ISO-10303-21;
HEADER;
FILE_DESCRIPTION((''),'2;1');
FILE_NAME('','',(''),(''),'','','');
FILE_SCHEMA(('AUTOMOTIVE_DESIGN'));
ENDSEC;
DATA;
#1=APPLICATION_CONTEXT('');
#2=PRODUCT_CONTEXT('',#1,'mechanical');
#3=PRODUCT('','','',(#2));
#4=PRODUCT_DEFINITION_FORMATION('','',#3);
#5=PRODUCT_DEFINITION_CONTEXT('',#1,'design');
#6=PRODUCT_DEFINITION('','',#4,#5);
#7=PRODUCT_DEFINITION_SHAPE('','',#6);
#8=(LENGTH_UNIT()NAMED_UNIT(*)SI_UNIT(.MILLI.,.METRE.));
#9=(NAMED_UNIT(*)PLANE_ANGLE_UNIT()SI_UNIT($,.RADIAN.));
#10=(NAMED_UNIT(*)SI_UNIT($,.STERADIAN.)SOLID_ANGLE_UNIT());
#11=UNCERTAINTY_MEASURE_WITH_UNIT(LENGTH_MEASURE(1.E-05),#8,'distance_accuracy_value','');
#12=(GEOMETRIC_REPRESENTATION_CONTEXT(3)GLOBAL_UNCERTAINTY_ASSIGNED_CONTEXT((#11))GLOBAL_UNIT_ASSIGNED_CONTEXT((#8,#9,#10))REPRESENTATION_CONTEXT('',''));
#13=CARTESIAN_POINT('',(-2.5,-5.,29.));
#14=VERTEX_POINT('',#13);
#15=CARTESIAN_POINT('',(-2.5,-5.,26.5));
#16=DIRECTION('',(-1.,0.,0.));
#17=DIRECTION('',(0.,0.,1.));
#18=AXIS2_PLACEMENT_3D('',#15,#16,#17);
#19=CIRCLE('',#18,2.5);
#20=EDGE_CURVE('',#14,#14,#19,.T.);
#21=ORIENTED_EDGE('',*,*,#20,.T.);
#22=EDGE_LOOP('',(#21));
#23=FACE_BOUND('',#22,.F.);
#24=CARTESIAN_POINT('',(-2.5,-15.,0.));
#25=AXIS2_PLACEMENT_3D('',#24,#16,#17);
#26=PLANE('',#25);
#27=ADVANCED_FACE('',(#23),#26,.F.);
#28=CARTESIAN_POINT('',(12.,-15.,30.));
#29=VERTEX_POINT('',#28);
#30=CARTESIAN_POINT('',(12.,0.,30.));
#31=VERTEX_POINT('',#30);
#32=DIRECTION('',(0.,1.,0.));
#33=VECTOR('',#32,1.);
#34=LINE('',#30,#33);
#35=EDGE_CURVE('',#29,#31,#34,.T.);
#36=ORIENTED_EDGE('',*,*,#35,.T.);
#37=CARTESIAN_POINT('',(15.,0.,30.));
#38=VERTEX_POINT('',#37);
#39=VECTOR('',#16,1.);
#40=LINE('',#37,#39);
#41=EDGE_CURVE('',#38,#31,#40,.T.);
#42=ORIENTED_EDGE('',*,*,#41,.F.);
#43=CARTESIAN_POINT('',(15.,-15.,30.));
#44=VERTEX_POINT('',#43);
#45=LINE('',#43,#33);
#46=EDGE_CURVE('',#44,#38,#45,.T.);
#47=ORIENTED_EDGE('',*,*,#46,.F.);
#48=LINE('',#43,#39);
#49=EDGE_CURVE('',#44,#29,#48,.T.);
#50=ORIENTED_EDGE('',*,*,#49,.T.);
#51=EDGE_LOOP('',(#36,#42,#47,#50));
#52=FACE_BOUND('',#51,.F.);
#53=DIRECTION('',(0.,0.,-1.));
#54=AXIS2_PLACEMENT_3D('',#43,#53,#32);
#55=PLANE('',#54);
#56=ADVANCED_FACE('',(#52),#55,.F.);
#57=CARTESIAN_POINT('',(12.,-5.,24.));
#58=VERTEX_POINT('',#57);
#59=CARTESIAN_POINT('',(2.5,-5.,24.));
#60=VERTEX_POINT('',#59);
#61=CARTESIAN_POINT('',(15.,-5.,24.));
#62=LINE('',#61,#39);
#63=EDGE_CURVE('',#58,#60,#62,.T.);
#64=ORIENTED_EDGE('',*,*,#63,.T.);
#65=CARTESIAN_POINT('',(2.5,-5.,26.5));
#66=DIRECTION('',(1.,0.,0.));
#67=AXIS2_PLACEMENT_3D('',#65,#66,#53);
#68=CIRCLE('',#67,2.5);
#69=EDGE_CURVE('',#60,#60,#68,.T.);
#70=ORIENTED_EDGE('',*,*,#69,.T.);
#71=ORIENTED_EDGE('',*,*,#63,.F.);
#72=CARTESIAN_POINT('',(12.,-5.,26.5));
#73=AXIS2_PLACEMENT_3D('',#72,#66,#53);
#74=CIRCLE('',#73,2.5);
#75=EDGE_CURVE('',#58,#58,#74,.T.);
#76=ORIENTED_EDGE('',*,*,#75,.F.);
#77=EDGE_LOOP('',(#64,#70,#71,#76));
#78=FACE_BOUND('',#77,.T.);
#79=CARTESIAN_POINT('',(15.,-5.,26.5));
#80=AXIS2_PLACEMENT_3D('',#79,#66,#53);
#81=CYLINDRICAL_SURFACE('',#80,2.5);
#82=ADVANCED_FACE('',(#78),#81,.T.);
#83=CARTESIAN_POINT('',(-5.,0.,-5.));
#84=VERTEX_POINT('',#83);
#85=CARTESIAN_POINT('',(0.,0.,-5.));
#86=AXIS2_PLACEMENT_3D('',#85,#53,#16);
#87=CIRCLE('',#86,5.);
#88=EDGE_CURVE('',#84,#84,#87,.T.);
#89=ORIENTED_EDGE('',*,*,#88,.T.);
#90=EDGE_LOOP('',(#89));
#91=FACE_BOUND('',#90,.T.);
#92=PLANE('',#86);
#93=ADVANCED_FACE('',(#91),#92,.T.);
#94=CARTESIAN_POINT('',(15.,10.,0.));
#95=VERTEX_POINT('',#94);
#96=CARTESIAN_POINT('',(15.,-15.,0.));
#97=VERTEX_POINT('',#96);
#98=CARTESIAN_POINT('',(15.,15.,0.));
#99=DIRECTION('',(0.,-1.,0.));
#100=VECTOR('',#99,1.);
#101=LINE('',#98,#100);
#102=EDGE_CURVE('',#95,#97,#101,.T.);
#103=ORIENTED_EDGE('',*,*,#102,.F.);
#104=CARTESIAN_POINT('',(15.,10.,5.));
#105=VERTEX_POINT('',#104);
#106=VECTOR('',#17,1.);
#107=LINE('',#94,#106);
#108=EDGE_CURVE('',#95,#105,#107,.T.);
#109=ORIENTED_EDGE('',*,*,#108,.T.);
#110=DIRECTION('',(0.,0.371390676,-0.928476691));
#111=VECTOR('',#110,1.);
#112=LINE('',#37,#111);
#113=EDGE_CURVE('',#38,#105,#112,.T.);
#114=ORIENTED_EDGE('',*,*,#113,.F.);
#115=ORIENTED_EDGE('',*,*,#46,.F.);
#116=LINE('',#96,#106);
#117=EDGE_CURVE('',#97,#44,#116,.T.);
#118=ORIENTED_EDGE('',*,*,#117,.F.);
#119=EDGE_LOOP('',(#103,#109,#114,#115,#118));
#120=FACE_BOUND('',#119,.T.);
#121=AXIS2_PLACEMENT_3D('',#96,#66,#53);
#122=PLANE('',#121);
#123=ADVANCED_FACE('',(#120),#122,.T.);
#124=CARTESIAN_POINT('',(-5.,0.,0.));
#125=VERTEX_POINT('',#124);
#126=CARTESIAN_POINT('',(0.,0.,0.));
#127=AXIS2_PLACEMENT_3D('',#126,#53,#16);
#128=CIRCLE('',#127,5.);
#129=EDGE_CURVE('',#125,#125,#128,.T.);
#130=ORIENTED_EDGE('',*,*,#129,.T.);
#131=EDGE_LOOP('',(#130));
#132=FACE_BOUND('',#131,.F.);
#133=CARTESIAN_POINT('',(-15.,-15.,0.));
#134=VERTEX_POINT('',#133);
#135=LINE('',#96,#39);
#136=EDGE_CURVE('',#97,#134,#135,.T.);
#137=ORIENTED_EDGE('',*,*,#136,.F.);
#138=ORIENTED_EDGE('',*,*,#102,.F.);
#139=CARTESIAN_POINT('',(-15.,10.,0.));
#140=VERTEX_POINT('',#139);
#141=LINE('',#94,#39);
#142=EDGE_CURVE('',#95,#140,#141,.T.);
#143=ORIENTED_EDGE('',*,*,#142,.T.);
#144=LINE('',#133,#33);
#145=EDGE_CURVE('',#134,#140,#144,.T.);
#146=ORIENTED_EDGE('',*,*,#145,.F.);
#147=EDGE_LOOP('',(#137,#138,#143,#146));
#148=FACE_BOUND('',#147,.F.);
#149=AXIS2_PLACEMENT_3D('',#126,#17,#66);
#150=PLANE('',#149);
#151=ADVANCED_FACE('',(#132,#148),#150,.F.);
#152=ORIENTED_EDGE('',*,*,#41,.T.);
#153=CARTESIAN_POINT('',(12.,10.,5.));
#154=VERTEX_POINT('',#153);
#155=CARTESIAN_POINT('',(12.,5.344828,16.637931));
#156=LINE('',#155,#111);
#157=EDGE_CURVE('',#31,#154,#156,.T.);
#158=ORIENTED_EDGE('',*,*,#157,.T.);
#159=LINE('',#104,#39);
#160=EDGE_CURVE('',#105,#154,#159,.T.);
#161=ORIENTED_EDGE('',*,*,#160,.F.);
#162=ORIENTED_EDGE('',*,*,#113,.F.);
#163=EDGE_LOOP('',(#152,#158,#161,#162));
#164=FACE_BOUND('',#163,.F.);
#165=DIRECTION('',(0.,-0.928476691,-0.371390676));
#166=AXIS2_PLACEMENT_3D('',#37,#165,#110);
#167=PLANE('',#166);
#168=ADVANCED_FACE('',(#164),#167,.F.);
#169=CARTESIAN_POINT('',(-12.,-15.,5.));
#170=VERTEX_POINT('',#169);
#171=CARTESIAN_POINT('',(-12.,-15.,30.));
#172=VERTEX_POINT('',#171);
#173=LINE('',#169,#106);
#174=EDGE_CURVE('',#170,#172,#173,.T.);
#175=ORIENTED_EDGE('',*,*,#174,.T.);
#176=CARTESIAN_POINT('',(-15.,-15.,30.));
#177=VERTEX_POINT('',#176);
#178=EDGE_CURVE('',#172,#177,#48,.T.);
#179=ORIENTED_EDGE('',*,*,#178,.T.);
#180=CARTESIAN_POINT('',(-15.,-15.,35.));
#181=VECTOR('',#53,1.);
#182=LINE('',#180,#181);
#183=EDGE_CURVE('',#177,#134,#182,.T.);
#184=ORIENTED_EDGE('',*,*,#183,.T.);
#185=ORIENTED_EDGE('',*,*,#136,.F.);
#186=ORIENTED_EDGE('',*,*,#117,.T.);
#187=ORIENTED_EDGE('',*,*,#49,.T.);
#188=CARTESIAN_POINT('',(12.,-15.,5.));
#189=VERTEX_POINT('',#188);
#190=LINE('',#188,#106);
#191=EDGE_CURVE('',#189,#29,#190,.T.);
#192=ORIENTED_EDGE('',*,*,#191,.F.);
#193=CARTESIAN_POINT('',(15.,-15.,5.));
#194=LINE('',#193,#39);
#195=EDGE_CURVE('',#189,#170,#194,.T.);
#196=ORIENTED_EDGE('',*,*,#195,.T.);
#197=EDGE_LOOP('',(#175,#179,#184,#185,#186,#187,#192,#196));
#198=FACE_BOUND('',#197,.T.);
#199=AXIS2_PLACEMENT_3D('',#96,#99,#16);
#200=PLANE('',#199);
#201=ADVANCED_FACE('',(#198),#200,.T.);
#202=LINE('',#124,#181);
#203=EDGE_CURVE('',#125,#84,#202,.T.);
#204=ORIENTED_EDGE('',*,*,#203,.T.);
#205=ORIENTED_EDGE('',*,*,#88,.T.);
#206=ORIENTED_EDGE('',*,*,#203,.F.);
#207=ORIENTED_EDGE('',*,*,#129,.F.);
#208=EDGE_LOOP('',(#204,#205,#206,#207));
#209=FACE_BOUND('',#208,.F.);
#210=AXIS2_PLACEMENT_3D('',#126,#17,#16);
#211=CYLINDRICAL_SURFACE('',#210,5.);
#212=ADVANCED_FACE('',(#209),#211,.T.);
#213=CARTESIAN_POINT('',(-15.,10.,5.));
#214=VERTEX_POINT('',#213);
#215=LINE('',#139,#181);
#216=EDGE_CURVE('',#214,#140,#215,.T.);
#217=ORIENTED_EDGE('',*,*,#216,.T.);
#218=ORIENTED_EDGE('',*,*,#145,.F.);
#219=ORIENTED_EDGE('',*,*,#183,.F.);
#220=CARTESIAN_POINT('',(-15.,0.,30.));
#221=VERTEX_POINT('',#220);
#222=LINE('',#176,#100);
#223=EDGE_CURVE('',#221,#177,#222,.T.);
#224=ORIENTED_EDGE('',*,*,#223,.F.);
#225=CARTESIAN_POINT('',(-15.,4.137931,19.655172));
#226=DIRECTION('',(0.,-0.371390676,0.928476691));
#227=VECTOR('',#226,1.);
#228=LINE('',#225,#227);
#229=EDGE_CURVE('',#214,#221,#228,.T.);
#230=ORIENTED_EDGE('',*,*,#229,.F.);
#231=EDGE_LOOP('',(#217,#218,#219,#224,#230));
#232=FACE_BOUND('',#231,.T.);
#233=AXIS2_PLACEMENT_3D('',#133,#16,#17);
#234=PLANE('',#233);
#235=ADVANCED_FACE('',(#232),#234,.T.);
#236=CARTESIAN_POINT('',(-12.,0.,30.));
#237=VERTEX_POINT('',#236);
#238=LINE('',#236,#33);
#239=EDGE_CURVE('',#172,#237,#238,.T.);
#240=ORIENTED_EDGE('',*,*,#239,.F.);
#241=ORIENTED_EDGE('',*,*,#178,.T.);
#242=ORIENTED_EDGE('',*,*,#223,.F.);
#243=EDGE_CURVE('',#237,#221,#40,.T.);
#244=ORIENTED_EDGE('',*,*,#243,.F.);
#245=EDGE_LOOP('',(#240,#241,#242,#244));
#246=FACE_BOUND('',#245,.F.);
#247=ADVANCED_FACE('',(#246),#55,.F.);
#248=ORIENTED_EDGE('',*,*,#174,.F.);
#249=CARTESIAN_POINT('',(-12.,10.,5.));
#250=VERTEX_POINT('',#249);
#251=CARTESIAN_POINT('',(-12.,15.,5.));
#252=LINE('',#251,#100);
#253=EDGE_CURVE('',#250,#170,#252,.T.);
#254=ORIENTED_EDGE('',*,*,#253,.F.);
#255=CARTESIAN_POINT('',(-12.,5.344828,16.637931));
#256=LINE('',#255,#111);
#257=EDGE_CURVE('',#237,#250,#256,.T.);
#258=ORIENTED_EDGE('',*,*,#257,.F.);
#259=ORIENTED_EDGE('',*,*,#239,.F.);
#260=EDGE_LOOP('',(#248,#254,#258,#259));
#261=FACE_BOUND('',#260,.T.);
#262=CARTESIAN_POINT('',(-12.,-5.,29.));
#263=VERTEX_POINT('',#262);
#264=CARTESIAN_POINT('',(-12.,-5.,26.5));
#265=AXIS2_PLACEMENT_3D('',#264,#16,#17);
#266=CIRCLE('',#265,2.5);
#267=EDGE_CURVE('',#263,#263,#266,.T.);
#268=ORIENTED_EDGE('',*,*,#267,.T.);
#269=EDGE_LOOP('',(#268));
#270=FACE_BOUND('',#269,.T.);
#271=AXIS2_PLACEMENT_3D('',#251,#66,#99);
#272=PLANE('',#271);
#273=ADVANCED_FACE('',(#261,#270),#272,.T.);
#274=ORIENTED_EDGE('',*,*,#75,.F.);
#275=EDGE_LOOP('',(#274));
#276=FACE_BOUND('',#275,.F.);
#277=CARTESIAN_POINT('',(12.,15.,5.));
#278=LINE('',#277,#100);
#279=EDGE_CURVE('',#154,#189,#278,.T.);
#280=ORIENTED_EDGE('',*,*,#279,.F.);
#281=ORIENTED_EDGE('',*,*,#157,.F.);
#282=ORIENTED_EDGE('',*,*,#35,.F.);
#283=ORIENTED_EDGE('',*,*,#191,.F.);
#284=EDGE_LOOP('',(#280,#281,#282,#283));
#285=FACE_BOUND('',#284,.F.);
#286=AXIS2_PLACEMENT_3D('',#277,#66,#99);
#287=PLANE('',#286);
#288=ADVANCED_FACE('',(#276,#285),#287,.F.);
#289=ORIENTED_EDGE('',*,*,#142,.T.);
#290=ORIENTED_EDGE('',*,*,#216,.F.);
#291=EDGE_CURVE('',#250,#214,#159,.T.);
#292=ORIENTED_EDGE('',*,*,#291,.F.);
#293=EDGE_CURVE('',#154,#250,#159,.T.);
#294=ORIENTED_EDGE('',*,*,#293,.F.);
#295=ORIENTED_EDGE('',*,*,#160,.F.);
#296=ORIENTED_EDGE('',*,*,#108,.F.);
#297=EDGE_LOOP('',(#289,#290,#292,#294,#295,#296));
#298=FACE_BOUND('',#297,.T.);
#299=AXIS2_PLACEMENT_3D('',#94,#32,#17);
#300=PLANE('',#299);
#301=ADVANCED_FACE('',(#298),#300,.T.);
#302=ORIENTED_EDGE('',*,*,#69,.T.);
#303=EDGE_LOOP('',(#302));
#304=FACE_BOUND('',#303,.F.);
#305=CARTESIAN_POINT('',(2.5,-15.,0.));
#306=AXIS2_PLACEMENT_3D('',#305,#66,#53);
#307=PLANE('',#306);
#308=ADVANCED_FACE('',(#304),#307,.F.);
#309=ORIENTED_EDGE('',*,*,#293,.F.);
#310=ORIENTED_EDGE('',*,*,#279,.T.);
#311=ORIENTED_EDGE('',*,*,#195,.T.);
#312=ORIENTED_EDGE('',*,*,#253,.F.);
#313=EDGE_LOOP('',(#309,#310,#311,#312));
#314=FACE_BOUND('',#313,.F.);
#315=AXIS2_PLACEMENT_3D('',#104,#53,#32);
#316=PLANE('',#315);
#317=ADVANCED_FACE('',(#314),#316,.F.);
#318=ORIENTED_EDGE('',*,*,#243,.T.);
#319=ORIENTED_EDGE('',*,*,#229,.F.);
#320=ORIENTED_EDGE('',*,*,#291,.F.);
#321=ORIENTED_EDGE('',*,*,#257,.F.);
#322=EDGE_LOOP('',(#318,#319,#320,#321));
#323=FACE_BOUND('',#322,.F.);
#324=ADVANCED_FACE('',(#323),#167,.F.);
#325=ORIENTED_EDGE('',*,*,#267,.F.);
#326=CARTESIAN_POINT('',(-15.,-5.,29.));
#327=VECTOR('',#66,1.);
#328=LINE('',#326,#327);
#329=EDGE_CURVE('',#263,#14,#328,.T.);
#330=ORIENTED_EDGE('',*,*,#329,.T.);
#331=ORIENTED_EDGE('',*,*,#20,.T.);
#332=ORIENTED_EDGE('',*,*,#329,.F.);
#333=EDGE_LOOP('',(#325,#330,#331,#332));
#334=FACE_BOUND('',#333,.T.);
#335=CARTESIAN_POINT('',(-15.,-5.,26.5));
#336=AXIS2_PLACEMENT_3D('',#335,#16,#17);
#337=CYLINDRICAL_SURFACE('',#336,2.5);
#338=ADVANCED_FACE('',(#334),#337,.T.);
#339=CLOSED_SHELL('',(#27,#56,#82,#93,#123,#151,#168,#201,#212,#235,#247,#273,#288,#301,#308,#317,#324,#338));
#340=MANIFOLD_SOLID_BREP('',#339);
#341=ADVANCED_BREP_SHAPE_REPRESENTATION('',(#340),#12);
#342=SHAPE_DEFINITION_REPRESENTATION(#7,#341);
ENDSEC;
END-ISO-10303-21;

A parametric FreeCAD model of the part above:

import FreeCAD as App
import Part
import Sketcher
from FreeCAD import Vector


def add_polygon(sketch, points):
    """Adds a closed chain of lines whose ends are joined by coincident constraints."""
    first, n = sketch.GeometryCount, len(points)
    for a, b in zip(points, points[1:] + points[:1]):
        sketch.addGeometry(Part.LineSegment(App.Vector(*a, 0), App.Vector(*b, 0)), False)
    for i in range(n):
        sketch.addConstraint(Sketcher.Constraint("Coincident", first + i, 2, first + (i + 1) % n, 1))

doc = App.newDocument("Part")
body = doc.addObject("PartDesign::Body", "Body")

# Sketch on XY plane
sketch1 = doc.addObject("Sketcher::SketchObject", "Sketch")
body.addObject(sketch1)
sketch1.AttachmentSupport = (doc.XY_Plane, [""])
sketch1.MapMode = "FlatFace"
add_polygon(sketch1, [(-15, -15), (15, -15), (15, 15), (-15, 15)])  # lines 0-3
sketch1.addConstraint(Sketcher.Constraint("Horizontal", 0))
sketch1.addConstraint(Sketcher.Constraint("Vertical", 1))
sketch1.addConstraint(Sketcher.Constraint("Horizontal", 2))
sketch1.addConstraint(Sketcher.Constraint("Vertical", 3))
sketch1.addConstraint(Sketcher.Constraint("Symmetric", 0, 2, 2, 2, -1, 1))
sketch1.addConstraint(Sketcher.Constraint("Equal", 2, 1))
sketch1.addConstraint(Sketcher.Constraint("DistanceX", 0, 1, 0, 2, 30.0))
pad1 = doc.addObject("PartDesign::Pad", "Pad")
body.addObject(pad1)
pad1.Profile = sketch1
pad1.Length = 5

# Sketch on XY plane
sketch2 = doc.addObject("Sketcher::SketchObject", "Sketch001")
body.addObject(sketch2)
sketch2.AttachmentSupport = (doc.XY_Plane, [""])
sketch2.MapMode = "FlatFace"
sketch2.AttachmentOffset = App.Placement(Vector(0, 0, 5), App.Rotation())
add_polygon(sketch2, [(-12, 15), (-15, 15), (-15, -15), (-12, -15)])  # lines 0-3
add_polygon(sketch2, [(12, 15), (12, -15), (15, -15), (15, 15)])  # lines 4-7
sketch2.addConstraint(Sketcher.Constraint("Horizontal", 0))
sketch2.addConstraint(Sketcher.Constraint("Vertical", 1))
sketch2.addConstraint(Sketcher.Constraint("Horizontal", 2))
sketch2.addConstraint(Sketcher.Constraint("Vertical", 3))
sketch2.addConstraint(Sketcher.Constraint("Vertical", 4))
sketch2.addConstraint(Sketcher.Constraint("Horizontal", 5))
sketch2.addConstraint(Sketcher.Constraint("Vertical", 6))
sketch2.addConstraint(Sketcher.Constraint("Horizontal", 7))
sketch2.addConstraint(Sketcher.Constraint("Symmetric", 3, 2, 4, 2, -1, 1))
sketch2.addConstraint(Sketcher.Constraint("Symmetric", 1, 2, 6, 2, -1, 1))
sketch2.addConstraint(Sketcher.Constraint("Horizontal", 2, 2, 4, 2))
sketch2.addConstraint(Sketcher.Constraint("DistanceX", 0, 2, 0, 1, 3.0))
sketch2.addConstraint(Sketcher.Constraint("DistanceY", 1, 2, 1, 1, 30.0))
sketch2.addConstraint(Sketcher.Constraint("DistanceX", 0, 2, -1, 1, 15.0))
pad2 = doc.addObject("PartDesign::Pad", "Pad001")
body.addObject(pad2)
pad2.Profile = sketch2
pad2.Length = 30

# Sketch on XY plane
sketch3 = doc.addObject("Sketcher::SketchObject", "Sketch002")
body.addObject(sketch3)
sketch3.AttachmentSupport = (doc.XY_Plane, [""])
sketch3.MapMode = "FlatFace"
sketch3.addGeometry(Part.Circle(Vector(0, 0, 0), Vector(0, 0, 1), 5), False)
sketch3.addConstraint(Sketcher.Constraint("Coincident", 0, 3, -1, 1))
sketch3.addConstraint(Sketcher.Constraint("Diameter", 0, 10.0))
pad3 = doc.addObject("PartDesign::Pad", "Pad002")
body.addObject(pad3)
pad3.Profile = sketch3
pad3.Length = 5
pad3.Reversed = True

# Sketch on YZ plane
sketch4 = doc.addObject("Sketcher::SketchObject", "Sketch003")
body.addObject(sketch4)
sketch4.AttachmentSupport = (doc.YZ_Plane, [""])
sketch4.MapMode = "FlatFace"
sketch4.AttachmentOffset = App.Placement(Vector(0, 0, 15), App.Rotation())
sketch4.addGeometry(Part.Circle(Vector(-5, 26.5, 0), Vector(0, 0, 1), 2.5), False)
sketch4.addConstraint(Sketcher.Constraint("Diameter", 0, 5.0))
sketch4.addConstraint(Sketcher.Constraint("DistanceX", 0, 3, -1, 1, 5.0))
sketch4.addConstraint(Sketcher.Constraint("DistanceY", -1, 1, 0, 3, 26.5))
pad4 = doc.addObject("PartDesign::Pad", "Pad003")
body.addObject(pad4)
pad4.Profile = sketch4
pad4.Length = 12.5
pad4.Reversed = True

# Sketch on YZ plane
sketch5 = doc.addObject("Sketcher::SketchObject", "Sketch004")
body.addObject(sketch5)
sketch5.AttachmentSupport = (doc.YZ_Plane, [""])
sketch5.MapMode = "FlatFace"
sketch5.AttachmentOffset = App.Placement(Vector(0, 0, -15), App.Rotation())
sketch5.addGeometry(Part.Circle(Vector(-5, 26.5, 0), Vector(0, 0, 1), 2.5), False)
sketch5.addConstraint(Sketcher.Constraint("Diameter", 0, 5.0))
sketch5.addConstraint(Sketcher.Constraint("DistanceX", 0, 3, -1, 1, 5.0))
sketch5.addConstraint(Sketcher.Constraint("DistanceY", -1, 1, 0, 3, 26.5))
pad5 = doc.addObject("PartDesign::Pad", "Pad004")
body.addObject(pad5)
pad5.Profile = sketch5
pad5.Length = 12.5

# Sketch on YZ plane
sketch6 = doc.addObject("Sketcher::SketchObject", "Sketch005")
body.addObject(sketch6)
sketch6.AttachmentSupport = (doc.YZ_Plane, [""])
sketch6.MapMode = "FlatFace"
sketch6.AttachmentOffset = App.Placement(Vector(0, 0, 15), App.Rotation())
add_polygon(sketch6, [(7, 30), (15, 10), (15, 35), (-15, 35), (-15, 30)])  # lines 0-4
sketch6.addConstraint(Sketcher.Constraint("Vertical", 1))
sketch6.addConstraint(Sketcher.Constraint("Horizontal", 2))
sketch6.addConstraint(Sketcher.Constraint("Vertical", 3))
sketch6.addConstraint(Sketcher.Constraint("Horizontal", 4))
sketch6.addConstraint(Sketcher.Constraint("DistanceY", 3, 2, 3, 1, 5.0))
sketch6.addConstraint(Sketcher.Constraint("DistanceY", -1, 1, 0, 2, 10.0))
sketch6.addConstraint(Sketcher.Constraint("DistanceX", 2, 2, 2, 1, 30.0))
sketch6.addConstraint(Sketcher.Constraint("DistanceX", 4, 1, 4, 2, 22.0))
sketch6.addConstraint(Sketcher.Constraint("DistanceY", 1, 1, 1, 2, 25.0))
sketch6.addConstraint(Sketcher.Constraint("DistanceX", -1, 1, 0, 2, 15.0))
pocket1 = doc.addObject("PartDesign::Pocket", "Pocket")
body.addObject(pocket1)
pocket1.Profile = sketch6
pocket1.Type = "ThroughAll"

# Sketch on YZ plane
sketch7 = doc.addObject("Sketcher::SketchObject", "Sketch006")
body.addObject(sketch7)
sketch7.AttachmentSupport = (doc.YZ_Plane, [""])
sketch7.MapMode = "FlatFace"
sketch7.AttachmentOffset = App.Placement(Vector(0, 0, 15), App.Rotation())
add_polygon(sketch7, [(15, 10), (7, 30), (0, 30), (10, 5), (15, 5)])  # lines 0-4
sketch7.addConstraint(Sketcher.Constraint("Horizontal", 1))
sketch7.addConstraint(Sketcher.Constraint("Horizontal", 3))
sketch7.addConstraint(Sketcher.Constraint("Vertical", 4))
sketch7.addConstraint(Sketcher.Constraint("PointOnObject", 1, 2, -2))
sketch7.addConstraint(Sketcher.Constraint("Parallel", 0, 2))
sketch7.addConstraint(Sketcher.Constraint("Equal", 3, 4))
sketch7.addConstraint(Sketcher.Constraint("DistanceX", 3, 1, 3, 2, 5.0))
sketch7.addConstraint(Sketcher.Constraint("DistanceX", -1, 1, 2, 2, 10.0))
sketch7.addConstraint(Sketcher.Constraint("DistanceY", -1, 1, 2, 2, 5.0))
sketch7.addConstraint(Sketcher.Constraint("DistanceX", 1, 2, 1, 1, 7.0))
pocket2 = doc.addObject("PartDesign::Pocket", "Pocket001")
body.addObject(pocket2)
pocket2.Profile = sketch7
pocket2.Type = "ThroughAll"

# Sketch on YZ plane
sketch8 = doc.addObject("Sketcher::SketchObject", "Sketch007")
body.addObject(sketch8)
sketch8.AttachmentSupport = (doc.YZ_Plane, [""])
sketch8.MapMode = "FlatFace"
sketch8.AttachmentOffset = App.Placement(Vector(0, 0, 15), App.Rotation())
add_polygon(sketch8, [(10, 5), (10, 0), (15, 0), (15, 5)])  # lines 0-3
sketch8.addConstraint(Sketcher.Constraint("Vertical", 0))
sketch8.addConstraint(Sketcher.Constraint("Horizontal", 1))
sketch8.addConstraint(Sketcher.Constraint("Vertical", 2))
sketch8.addConstraint(Sketcher.Constraint("Horizontal", 3))
sketch8.addConstraint(Sketcher.Constraint("PointOnObject", 0, 2, -1))
sketch8.addConstraint(Sketcher.Constraint("Equal", 3, 0))
sketch8.addConstraint(Sketcher.Constraint("DistanceX", 1, 1, 1, 2, 5.0))
sketch8.addConstraint(Sketcher.Constraint("DistanceX", -1, 1, 0, 2, 10.0))
pocket3 = doc.addObject("PartDesign::Pocket", "Pocket002")
body.addObject(pocket3)
pocket3.Profile = sketch8
pocket3.Type = "ThroughAll"

doc.recompute()
